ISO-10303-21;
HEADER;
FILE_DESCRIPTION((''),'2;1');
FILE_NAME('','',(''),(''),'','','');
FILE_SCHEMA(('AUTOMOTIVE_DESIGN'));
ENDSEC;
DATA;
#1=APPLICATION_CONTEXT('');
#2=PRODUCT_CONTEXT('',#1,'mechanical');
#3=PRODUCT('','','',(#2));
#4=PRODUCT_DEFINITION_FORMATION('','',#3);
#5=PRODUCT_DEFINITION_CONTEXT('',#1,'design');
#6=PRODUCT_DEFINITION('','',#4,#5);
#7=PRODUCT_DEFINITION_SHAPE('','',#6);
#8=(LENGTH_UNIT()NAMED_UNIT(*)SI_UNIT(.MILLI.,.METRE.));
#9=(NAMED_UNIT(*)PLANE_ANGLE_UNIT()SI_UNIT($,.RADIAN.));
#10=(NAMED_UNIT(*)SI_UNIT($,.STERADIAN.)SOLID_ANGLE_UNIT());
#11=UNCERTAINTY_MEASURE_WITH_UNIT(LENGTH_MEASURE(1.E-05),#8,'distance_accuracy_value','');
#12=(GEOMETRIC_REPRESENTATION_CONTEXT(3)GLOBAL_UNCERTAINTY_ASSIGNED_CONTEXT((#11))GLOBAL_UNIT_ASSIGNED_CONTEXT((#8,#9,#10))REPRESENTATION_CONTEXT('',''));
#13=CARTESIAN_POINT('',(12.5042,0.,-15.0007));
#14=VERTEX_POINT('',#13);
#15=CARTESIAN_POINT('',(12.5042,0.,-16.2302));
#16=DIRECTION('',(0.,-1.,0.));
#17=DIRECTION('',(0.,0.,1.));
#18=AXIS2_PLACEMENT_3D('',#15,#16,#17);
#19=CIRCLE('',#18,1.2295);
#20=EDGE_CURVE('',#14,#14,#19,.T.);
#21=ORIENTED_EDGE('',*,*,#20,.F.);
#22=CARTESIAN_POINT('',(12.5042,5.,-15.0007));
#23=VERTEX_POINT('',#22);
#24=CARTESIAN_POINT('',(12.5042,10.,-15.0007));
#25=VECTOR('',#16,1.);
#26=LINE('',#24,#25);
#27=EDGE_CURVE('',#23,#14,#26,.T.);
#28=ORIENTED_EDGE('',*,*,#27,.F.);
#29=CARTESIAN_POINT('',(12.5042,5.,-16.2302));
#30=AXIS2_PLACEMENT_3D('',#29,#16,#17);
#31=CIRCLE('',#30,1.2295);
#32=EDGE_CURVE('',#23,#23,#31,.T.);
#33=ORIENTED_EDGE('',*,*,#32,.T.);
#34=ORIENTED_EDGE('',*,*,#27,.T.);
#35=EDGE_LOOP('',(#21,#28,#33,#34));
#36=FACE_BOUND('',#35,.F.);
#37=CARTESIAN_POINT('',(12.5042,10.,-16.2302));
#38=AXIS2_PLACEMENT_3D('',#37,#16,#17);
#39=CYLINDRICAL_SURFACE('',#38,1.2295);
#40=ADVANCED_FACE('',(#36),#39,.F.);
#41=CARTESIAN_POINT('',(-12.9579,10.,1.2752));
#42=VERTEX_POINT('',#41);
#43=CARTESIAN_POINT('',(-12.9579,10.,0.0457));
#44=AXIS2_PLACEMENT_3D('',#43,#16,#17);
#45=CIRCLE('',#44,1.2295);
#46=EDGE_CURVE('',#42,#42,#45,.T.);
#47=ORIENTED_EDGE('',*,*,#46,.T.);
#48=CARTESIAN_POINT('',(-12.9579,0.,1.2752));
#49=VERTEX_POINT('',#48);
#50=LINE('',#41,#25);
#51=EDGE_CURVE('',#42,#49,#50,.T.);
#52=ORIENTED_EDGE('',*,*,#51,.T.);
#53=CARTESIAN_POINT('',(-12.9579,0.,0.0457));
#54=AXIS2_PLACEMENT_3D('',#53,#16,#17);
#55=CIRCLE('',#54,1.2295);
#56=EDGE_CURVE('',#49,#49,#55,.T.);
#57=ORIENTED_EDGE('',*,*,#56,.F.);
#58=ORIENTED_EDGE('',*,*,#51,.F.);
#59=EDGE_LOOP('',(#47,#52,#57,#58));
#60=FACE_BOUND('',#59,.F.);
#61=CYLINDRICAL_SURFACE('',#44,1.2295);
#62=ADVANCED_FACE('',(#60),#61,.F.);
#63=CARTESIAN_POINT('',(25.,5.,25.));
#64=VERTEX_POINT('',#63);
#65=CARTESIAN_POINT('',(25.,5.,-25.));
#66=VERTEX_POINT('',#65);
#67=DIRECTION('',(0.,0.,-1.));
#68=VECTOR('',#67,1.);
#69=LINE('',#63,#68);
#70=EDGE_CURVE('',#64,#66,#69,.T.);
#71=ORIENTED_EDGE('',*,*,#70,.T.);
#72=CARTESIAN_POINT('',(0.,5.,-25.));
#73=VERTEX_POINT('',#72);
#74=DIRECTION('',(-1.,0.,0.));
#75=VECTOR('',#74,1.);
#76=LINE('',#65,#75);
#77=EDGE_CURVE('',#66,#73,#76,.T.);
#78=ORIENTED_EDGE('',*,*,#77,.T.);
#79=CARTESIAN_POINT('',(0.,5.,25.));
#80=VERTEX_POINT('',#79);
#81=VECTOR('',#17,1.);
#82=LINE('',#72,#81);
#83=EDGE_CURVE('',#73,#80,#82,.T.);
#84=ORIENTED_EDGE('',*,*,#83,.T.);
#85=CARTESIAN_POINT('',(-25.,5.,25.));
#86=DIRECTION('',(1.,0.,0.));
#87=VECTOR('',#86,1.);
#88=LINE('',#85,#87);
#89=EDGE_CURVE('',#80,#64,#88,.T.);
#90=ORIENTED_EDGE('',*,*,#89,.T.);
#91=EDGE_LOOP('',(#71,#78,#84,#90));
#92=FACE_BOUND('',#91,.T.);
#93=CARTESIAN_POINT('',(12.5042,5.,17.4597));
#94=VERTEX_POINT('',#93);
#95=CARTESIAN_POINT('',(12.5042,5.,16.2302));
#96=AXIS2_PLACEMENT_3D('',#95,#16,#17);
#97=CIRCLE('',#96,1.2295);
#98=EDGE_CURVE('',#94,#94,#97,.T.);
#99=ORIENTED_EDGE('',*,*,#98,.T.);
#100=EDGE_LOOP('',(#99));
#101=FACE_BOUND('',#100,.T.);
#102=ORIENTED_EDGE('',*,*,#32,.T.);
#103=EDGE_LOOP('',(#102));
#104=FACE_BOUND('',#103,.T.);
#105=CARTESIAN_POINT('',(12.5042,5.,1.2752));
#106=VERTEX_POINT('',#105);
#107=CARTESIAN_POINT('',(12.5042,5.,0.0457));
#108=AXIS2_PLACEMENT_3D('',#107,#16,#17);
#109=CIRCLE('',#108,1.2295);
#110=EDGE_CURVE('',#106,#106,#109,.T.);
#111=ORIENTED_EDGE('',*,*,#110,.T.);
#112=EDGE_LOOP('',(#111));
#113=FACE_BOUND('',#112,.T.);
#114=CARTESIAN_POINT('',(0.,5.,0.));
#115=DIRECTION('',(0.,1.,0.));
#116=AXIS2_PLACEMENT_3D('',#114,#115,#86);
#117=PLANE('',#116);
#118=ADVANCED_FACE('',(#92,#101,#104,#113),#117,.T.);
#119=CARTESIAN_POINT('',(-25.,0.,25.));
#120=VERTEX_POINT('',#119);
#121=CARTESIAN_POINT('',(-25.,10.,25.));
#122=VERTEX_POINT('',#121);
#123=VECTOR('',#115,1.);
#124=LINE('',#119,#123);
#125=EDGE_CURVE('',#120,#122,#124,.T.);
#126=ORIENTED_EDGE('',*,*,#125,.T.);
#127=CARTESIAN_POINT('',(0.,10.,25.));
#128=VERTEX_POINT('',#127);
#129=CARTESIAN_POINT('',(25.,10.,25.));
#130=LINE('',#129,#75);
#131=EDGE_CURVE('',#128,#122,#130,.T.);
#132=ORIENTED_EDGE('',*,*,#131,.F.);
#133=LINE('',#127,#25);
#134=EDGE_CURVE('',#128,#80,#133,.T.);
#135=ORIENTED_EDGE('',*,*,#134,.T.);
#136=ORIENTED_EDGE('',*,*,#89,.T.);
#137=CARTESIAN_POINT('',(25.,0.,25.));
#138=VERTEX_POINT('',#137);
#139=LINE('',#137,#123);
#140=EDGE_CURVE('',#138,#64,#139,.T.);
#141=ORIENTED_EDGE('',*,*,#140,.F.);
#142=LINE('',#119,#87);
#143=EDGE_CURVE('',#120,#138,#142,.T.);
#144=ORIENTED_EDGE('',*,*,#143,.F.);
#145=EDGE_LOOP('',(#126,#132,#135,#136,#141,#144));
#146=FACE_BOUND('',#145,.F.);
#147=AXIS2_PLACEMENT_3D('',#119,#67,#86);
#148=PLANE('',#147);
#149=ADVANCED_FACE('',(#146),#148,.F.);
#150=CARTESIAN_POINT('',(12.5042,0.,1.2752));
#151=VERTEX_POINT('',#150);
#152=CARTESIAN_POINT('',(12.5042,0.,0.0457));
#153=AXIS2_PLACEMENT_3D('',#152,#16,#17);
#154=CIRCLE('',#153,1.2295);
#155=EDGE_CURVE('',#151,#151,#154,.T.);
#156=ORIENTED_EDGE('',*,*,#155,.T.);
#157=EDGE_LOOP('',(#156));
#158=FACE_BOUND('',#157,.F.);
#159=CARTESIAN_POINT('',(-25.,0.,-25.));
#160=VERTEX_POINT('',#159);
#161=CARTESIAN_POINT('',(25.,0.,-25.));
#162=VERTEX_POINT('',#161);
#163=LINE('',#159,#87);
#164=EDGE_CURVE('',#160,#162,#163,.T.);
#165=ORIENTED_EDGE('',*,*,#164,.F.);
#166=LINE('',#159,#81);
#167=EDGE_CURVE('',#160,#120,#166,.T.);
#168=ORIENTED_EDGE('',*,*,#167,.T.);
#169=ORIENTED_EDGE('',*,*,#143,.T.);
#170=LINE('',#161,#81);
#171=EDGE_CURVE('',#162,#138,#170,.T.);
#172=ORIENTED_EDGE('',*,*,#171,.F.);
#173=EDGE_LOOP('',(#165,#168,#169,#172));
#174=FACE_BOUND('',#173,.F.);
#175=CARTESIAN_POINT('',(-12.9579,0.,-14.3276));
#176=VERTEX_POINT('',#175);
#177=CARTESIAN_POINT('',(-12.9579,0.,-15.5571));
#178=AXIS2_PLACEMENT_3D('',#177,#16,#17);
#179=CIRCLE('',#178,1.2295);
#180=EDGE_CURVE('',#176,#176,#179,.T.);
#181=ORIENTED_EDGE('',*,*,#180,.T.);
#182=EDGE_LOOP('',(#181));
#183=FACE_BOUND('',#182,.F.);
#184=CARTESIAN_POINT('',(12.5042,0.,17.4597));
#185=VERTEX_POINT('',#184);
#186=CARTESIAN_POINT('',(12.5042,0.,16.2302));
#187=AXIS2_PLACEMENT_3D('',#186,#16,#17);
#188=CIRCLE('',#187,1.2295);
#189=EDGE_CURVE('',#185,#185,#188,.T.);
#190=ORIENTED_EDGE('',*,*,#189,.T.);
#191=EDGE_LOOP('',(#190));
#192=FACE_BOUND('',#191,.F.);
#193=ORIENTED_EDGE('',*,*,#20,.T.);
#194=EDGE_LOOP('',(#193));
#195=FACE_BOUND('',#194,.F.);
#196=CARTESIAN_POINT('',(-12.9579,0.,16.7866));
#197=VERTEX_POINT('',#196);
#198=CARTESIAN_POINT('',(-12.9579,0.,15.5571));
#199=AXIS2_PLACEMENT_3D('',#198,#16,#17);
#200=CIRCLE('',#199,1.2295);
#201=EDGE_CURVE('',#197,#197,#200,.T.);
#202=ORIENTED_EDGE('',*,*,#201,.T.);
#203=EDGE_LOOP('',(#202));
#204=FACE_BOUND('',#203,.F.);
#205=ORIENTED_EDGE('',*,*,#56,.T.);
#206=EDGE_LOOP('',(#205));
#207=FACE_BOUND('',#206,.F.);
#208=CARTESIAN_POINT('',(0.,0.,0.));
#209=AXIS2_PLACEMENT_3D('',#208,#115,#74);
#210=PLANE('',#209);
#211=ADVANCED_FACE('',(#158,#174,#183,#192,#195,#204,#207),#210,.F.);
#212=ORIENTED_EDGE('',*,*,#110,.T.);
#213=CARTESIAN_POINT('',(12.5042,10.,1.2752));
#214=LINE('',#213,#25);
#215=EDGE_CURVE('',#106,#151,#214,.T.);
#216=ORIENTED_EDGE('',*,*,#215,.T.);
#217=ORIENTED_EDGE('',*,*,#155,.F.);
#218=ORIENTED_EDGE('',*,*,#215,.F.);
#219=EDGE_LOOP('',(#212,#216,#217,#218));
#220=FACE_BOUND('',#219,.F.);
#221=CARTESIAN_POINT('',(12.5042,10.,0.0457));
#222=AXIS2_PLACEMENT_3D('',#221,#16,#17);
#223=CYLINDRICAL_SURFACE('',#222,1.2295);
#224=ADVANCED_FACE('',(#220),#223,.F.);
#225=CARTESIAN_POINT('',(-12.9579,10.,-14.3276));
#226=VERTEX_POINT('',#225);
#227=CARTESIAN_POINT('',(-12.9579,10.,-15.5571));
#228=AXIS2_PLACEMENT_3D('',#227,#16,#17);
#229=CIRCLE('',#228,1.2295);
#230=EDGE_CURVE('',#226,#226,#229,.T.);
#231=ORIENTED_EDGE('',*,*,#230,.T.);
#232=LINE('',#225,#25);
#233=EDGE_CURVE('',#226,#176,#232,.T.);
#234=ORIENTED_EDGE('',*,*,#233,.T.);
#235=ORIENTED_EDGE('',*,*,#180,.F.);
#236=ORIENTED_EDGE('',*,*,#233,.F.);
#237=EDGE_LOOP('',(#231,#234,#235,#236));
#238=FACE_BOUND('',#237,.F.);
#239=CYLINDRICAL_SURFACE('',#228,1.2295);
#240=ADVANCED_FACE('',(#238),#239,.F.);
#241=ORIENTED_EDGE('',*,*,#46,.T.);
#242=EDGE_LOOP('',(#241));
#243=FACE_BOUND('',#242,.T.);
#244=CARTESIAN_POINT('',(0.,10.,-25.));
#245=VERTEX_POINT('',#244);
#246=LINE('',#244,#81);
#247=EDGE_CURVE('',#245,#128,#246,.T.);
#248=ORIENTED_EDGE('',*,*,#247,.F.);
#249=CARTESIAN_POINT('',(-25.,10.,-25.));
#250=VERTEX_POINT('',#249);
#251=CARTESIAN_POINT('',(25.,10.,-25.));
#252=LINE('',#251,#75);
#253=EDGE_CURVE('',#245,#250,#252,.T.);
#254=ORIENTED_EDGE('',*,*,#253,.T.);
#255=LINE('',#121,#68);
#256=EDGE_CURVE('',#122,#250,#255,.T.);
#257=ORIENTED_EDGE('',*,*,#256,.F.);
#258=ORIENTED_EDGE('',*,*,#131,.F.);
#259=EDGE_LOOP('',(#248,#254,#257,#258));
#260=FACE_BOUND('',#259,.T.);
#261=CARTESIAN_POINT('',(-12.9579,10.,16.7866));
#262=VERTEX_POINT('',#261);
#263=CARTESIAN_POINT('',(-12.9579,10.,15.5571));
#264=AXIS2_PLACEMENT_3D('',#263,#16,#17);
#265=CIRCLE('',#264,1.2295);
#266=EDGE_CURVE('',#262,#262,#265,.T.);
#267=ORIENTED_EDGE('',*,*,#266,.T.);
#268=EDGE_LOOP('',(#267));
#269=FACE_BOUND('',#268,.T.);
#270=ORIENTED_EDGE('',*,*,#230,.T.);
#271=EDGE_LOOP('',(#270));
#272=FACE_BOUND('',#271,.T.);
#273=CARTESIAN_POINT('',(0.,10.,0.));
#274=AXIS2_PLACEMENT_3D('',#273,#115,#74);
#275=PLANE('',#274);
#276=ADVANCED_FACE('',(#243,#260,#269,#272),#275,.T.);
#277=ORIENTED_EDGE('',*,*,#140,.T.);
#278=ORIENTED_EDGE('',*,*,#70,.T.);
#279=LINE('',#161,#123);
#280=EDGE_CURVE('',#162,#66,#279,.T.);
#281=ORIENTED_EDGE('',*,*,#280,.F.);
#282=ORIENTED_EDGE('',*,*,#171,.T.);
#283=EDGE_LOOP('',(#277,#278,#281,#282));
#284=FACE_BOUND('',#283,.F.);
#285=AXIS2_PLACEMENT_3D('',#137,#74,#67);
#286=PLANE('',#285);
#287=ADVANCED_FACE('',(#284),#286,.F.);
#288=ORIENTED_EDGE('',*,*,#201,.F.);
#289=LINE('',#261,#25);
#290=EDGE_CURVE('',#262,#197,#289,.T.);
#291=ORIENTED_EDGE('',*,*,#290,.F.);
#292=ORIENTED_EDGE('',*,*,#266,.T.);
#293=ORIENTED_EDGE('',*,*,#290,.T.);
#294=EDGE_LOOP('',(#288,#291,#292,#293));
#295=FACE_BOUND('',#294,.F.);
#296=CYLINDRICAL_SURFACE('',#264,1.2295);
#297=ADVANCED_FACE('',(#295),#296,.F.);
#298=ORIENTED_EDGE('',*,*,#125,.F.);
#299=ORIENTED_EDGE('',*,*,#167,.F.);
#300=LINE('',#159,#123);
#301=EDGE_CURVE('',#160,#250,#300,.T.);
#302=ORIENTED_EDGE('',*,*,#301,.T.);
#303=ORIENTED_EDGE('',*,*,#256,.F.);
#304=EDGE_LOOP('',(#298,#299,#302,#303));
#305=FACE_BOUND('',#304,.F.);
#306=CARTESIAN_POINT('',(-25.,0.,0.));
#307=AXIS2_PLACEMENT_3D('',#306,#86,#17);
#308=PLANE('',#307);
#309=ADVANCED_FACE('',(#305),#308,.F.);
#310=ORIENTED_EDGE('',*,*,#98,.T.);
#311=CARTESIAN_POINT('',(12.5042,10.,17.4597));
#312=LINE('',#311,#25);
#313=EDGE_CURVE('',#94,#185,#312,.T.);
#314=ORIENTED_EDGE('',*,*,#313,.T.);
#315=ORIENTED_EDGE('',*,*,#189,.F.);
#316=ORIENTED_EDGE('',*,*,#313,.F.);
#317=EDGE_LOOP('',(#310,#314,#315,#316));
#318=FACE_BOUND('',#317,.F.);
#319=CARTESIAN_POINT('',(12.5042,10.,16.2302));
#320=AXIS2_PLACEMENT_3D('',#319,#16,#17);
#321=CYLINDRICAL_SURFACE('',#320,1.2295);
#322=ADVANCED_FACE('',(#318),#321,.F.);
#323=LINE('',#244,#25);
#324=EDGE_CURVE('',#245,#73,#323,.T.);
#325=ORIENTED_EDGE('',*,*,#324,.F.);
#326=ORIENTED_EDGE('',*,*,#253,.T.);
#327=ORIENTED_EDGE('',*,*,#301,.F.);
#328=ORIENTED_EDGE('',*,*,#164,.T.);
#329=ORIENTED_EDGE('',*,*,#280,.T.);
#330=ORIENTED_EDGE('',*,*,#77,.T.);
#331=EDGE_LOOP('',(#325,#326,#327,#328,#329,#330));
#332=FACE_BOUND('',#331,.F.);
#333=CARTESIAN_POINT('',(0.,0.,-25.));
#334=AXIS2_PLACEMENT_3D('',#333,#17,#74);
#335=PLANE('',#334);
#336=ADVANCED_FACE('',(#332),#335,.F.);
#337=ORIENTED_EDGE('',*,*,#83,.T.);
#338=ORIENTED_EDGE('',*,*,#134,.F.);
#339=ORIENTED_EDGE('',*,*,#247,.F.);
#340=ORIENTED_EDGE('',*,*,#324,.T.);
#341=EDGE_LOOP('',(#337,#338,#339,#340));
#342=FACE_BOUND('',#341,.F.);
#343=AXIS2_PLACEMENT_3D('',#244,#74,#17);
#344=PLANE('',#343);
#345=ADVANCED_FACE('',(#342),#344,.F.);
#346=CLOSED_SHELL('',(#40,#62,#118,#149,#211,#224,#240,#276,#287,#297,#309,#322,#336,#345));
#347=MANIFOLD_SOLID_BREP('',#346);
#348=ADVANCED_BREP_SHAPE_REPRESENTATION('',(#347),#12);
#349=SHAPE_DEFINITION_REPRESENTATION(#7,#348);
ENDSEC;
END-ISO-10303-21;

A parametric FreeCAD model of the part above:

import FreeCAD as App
import Part
import Sketcher
from FreeCAD import Vector
Q = App.Units.Quantity


def add_polygon(sketch, points):
    """Adds a closed chain of lines whose ends are joined by coincident constraints."""
    first, n = sketch.GeometryCount, len(points)
    for a, b in zip(points, points[1:] + points[:1]):
        sketch.addGeometry(Part.LineSegment(App.Vector(*a, 0), App.Vector(*b, 0)), False)
    for i in range(n):
        sketch.addConstraint(Sketcher.Constraint("Coincident", first + i, 2, first + (i + 1) % n, 1))

doc = App.newDocument("Part")
body = doc.addObject("PartDesign::Body", "Body")

sketch1 = body.newObject("Sketcher::SketchObject", "Sketch")
sketch1.AttachmentSupport = (doc.getObject("XZ_Plane"), [""])
sketch1.MapMode = "FlatFace"
add_polygon(sketch1, [(-25, 25), (25, 25), (25, -25), (-25, -25)])
sketch1.addConstraint([
    Sketcher.Constraint("Horizontal", 0),
    Sketcher.Constraint("Vertical", 1),
    Sketcher.Constraint("Horizontal", 2),
    Sketcher.Constraint("Vertical", 3),
    Sketcher.Constraint("Symmetric", 0, 2, 2, 2, -1, 1),
    Sketcher.Constraint("Equal", 2, 1),
    Sketcher.Constraint("DistanceX", 0, 1, 0, 2, Q("50 mm")),
])
pad1 = body.newObject("PartDesign::Pad", "Pad")
pad1.Profile = sketch1
pad1.Length = 10
pad1.Reversed = True

sketch2 = body.newObject("Sketcher::SketchObject", "Sketch001")
sketch2.AttachmentSupport = (doc.getObject("XZ_Plane"), [""])
sketch2.MapMode = "FlatFace"
sketch2.AttachmentOffset = App.Placement(Vector(0, 0, -10), App.Rotation())
add_polygon(sketch2, [(0, -25), (0, 25), (25, 25), (25, -25)])
sketch2.addConstraint([
    Sketcher.Constraint("Vertical", 0),
    Sketcher.Constraint("Horizontal", 1),
    Sketcher.Constraint("Vertical", 2),
    Sketcher.Constraint("Horizontal", 3),
    Sketcher.Constraint("Symmetric", 0, 2, 3, 2, -1, 1),
    Sketcher.Constraint("DistanceX", 1, 1, 1, 2, Q("25 mm")),
    Sketcher.Constraint("DistanceY", 0, 1, 0, 2, Q("50 mm")),
])
pocket1 = body.newObject("PartDesign::Pocket", "Pocket")
pocket1.Profile = sketch2
pocket1.Length = 5
pocket1.Reversed = True

sketch3 = body.newObject("Sketcher::SketchObject", "Sketch002")
sketch3.AttachmentSupport = (doc.getObject("XZ_Plane"), [""])
sketch3.MapMode = "FlatFace"
sketch3.AttachmentOffset = App.Placement(Vector(0, 0, -10), App.Rotation())
sketch3.addGeometry([
    Part.Circle(Vector(-12.9579, 0.0457, 0), Vector(0, 0, 1), 1.2295),
    Part.Circle(Vector(-12.9579, -15.5571, 0), Vector(0, 0, 1), 1.2295),
    Part.Circle(Vector(12.5042, 16.2302, 0), Vector(0, 0, 1), 1.2295),
    Part.Circle(Vector(12.5042, 0.0457, 0), Vector(0, 0, 1), 1.2295),
    Part.Circle(Vector(12.5042, -16.2302, 0), Vector(0, 0, 1), 1.2295),
    Part.Circle(Vector(-12.9579, 15.5571, 0), Vector(0, 0, 1), 1.2295),
], False)
sketch3.addConstraint([
    Sketcher.Constraint("Equal", 0, 1),
    Sketcher.Constraint("Equal", 1, 2),
    Sketcher.Constraint("Equal", 2, 3),
    Sketcher.Constraint("Equal", 3, 4),
    Sketcher.Constraint("Equal", 4, 5),
    Sketcher.Constraint("Symmetric", 2, 3, 4, 3, -1),
    Sketcher.Constraint("Symmetric", 1, 3, 5, 3, -1),
    Sketcher.Constraint("Horizontal", 0, 3, 3, 3),
    Sketcher.Constraint("Vertical", 0, 3, 1, 3),
    Sketcher.Constraint("Vertical", 2, 3, 3, 3),
    Sketcher.Constraint("Diameter", 0, Q("2.459 mm")),
    Sketcher.Constraint("DistanceX", 0, 3, -1, 1, Q("12.958 mm")),
    Sketcher.Constraint("DistanceY", 1, 3, -1, 1, Q("15.557 mm")),
    Sketcher.Constraint("DistanceX", 0, 3, 2, 3, Q("25.462 mm")),
    Sketcher.Constraint("DistanceY", 4, 3, 3, 3, Q("16.276 mm")),
    Sketcher.Constraint("DistanceY", 4, 3, 1, 3, Q("0.673 mm")),
])
doc.recompute()
hole = body.newObject("PartDesign::Hole", "Hole")
hole.Profile = sketch3
hole.ThreadType = "None"
hole.Diameter = 2.459
hole.DepthType = "Dimension"
hole.Depth = 10
hole.DrillPoint = "Flat"
hole.Reversed = True

doc.recompute()
